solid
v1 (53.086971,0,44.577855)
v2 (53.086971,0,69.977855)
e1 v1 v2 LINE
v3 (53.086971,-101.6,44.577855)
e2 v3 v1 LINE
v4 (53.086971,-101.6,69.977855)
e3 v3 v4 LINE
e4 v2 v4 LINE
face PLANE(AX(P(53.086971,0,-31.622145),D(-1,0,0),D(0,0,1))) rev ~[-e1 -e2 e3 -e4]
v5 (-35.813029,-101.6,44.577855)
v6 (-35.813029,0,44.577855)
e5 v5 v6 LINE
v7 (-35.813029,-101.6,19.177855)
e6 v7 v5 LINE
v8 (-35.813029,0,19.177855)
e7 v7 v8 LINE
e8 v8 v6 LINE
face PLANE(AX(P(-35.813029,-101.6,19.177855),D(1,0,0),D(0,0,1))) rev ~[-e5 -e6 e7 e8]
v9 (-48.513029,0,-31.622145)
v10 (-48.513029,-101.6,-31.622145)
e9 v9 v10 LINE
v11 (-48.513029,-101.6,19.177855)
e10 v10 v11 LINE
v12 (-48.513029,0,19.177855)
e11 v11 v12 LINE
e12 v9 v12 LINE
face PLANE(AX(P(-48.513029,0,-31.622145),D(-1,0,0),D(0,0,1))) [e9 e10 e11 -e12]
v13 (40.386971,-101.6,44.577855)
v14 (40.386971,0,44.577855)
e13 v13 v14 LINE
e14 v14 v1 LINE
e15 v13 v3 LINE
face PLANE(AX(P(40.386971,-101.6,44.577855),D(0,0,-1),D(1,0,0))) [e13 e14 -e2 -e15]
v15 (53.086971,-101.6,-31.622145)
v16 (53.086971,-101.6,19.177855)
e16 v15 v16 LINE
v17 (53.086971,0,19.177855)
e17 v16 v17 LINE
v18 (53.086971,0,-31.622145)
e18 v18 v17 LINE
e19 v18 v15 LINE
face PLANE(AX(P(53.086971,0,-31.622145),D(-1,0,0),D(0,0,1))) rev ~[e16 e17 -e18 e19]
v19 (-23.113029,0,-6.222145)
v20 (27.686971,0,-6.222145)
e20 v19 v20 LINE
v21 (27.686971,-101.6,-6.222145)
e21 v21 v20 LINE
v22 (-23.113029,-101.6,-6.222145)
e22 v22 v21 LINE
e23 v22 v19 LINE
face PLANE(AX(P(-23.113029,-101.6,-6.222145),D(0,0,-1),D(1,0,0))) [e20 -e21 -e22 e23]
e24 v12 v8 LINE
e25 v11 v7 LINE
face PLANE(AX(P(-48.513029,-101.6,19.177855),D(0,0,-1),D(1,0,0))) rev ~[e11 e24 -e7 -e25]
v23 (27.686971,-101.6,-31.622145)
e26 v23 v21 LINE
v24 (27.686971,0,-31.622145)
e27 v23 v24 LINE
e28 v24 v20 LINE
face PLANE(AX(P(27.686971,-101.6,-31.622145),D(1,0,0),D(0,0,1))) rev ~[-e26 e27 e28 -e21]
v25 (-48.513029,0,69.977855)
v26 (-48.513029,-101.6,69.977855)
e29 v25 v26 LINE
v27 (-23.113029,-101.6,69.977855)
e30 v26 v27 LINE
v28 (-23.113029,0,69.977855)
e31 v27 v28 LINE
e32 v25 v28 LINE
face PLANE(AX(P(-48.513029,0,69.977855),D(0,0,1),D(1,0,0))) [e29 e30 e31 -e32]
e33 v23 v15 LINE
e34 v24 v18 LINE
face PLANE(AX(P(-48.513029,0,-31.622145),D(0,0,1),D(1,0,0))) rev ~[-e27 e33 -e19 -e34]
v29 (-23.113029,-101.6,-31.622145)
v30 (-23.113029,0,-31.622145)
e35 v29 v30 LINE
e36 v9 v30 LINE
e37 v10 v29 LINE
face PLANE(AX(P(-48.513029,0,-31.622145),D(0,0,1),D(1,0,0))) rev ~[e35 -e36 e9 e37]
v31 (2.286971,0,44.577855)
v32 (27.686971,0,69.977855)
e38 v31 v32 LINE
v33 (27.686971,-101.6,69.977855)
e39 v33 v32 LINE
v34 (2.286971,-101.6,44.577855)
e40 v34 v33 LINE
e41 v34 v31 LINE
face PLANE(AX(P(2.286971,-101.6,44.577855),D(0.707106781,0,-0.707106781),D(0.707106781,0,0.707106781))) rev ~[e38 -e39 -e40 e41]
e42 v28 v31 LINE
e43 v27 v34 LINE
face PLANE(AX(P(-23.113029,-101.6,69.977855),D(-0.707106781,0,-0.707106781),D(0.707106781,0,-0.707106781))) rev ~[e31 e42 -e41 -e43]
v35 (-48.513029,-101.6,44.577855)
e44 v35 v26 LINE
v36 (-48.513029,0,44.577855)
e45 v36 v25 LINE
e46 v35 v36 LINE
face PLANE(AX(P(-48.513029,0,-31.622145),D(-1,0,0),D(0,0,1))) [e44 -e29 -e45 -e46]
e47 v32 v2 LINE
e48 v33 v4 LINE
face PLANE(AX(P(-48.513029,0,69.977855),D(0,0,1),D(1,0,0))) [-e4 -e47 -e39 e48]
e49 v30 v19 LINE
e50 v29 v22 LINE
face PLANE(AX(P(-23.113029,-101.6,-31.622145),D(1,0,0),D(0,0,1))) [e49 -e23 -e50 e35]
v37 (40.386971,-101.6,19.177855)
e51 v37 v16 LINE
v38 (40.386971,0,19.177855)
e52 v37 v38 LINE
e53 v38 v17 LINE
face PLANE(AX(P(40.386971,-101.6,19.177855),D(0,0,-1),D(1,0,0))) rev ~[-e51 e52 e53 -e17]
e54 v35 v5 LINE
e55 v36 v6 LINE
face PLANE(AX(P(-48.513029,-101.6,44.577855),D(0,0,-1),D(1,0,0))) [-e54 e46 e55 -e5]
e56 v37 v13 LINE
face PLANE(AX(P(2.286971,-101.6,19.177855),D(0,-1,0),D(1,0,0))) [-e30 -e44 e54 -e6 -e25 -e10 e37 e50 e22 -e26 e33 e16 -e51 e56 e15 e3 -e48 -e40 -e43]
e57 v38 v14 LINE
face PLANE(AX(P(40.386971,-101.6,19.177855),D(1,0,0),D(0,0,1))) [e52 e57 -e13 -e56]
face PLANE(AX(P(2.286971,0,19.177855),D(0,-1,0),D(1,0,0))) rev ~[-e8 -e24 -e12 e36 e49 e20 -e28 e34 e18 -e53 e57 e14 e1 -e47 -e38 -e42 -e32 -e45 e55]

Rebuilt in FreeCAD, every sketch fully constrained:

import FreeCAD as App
import Part
import Sketcher

V = App.Vector
Q = App.Units.Quantity

doc = App.newDocument("Part")
params = doc.addObject("Spreadsheet::Sheet", "Params")
for row, (alias, value) in enumerate([
    ("sketch1_width", "4 in"),
    ("pad1_length", "4 in"),
    ("sketch2_width", "2 in"),
    ("pocket1_length", "4 in"),
    ("sketch3_height", "1 in"),
    ("sketch3_width", "0.5 in"),
    ("pocket2_length", "4 in"),
    ("sketch4_width", "2 in"),
    ("sketch4_height", "1 in"),
    ("pocket3_length", "4 in"),
], start=1):
    params.set(f"A{row}", alias)
    params.set(f"B{row}", "=" + value)
    params.setAlias(f"B{row}", alias)

body = doc.addObject("PartDesign::Body", "Body")

sketch1 = doc.addObject("Sketcher::SketchObject", "Sketch")
body.addObject(sketch1)
sketch1.AttachmentSupport = (doc.XZ_Plane, [""])
sketch1.MapMode = "FlatFace"
sketch1.addGeometry(Part.LineSegment(V(-49, 70, 0), V(-49, -32, 0)), False)
sketch1.addGeometry(Part.LineSegment(V(-49, -32, 0), V(53, -32, 0)), False)
sketch1.addGeometry(Part.LineSegment(V(53, -32, 0), V(53, 70, 0)), False)
sketch1.addGeometry(Part.LineSegment(V(53, 70, 0), V(-49, 70, 0)), False)
sketch1.addConstraint(Sketcher.Constraint("Coincident", 0, 2, 1, 1))
sketch1.addConstraint(Sketcher.Constraint("Coincident", 1, 2, 2, 1))
sketch1.addConstraint(Sketcher.Constraint("Coincident", 2, 2, 3, 1))
sketch1.addConstraint(Sketcher.Constraint("Coincident", 3, 2, 0, 1))
sketch1.addConstraint(Sketcher.Constraint("Vertical", 0))
sketch1.addConstraint(Sketcher.Constraint("Horizontal", 1))
sketch1.addConstraint(Sketcher.Constraint("Vertical", 2))
sketch1.addConstraint(Sketcher.Constraint("Horizontal", 3))
sketch1.addConstraint(Sketcher.Constraint("Equal", 3, 0))
sketch1.addConstraint(Sketcher.Constraint("DistanceX", 1, 1, 1, 2, Q("4 in")))
sketch1.addConstraint(Sketcher.Constraint("DistanceX", 0, 2, -1, 1, 48.513029))
sketch1.addConstraint(Sketcher.Constraint("DistanceY", 0, 2, -1, 1, 31.622145))
sketch1.setExpression("Constraints[9]", "Params.sketch1_width")
pad1 = doc.addObject("PartDesign::Pad", "Pad")
body.addObject(pad1)
pad1.Profile = sketch1
pad1.setExpression("Length", "Params.pad1_length")

sketch2 = doc.addObject("Sketcher::SketchObject", "Sketch001")
body.addObject(sketch2)
sketch2.AttachmentSupport = (doc.XZ_Plane, [""])
sketch2.MapMode = "FlatFace"
sketch2.AttachmentOffset = App.Placement(V(0, 0, 4 * 25.4), App.Rotation())
sketch2.addGeometry(Part.LineSegment(V(28, 70, 0), V(-23, 70, 0)), False)
sketch2.addGeometry(Part.LineSegment(V(-23, 70, 0), V(2, 45, 0)), False)
sketch2.addGeometry(Part.LineSegment(V(2, 45, 0), V(28, 70, 0)), False)
sketch2.addConstraint(Sketcher.Constraint("Coincident", 0, 2, 1, 1))
sketch2.addConstraint(Sketcher.Constraint("Coincident", 1, 2, 2, 1))
sketch2.addConstraint(Sketcher.Constraint("Coincident", 2, 2, 0, 1))
sketch2.addConstraint(Sketcher.Constraint("Horizontal", 0))
sketch2.addConstraint(Sketcher.Constraint("Perpendicular", 1, 2))
sketch2.addConstraint(Sketcher.Constraint("Equal", 1, 2))
sketch2.addConstraint(Sketcher.Constraint("DistanceX", 0, 2, 0, 1, Q("2 in")))
sketch2.addConstraint(Sketcher.Constraint("DistanceX", 0, 2, -1, 1, 23.113029))
sketch2.addConstraint(Sketcher.Constraint("DistanceY", -1, 1, 0, 2, 69.977855))
sketch2.setExpression("Constraints[6]", "Params.sketch2_width")
pocket1 = doc.addObject("PartDesign::Pocket", "Pocket")
body.addObject(pocket1)
pocket1.Profile = sketch2
pocket1.setExpression("Length", "Params.pocket1_length")

sketch3 = doc.addObject("Sketcher::SketchObject", "Sketch002")
body.addObject(sketch3)
sketch3.AttachmentSupport = (doc.XZ_Plane, [""])
sketch3.MapMode = "FlatFace"
sketch3.AttachmentOffset = App.Placement(V(0, 0, 4 * 25.4), App.Rotation())
sketch3.addGeometry(Part.LineSegment(V(-49, 45, 0), V(-49, 19, 0)), False)
sketch3.addGeometry(Part.LineSegment(V(-49, 19, 0), V(-36, 19, 0)), False)
sketch3.addGeometry(Part.LineSegment(V(-36, 19, 0), V(-36, 45, 0)), False)
sketch3.addGeometry(Part.LineSegment(V(-36, 45, 0), V(-49, 45, 0)), False)
sketch3.addGeometry(Part.LineSegment(V(40, 45, 0), V(40, 19, 0)), False)
sketch3.addGeometry(Part.LineSegment(V(40, 19, 0), V(53, 19, 0)), False)
sketch3.addGeometry(Part.LineSegment(V(53, 19, 0), V(53, 45, 0)), False)
sketch3.addGeometry(Part.LineSegment(V(53, 45, 0), V(40, 45, 0)), False)
sketch3.addConstraint(Sketcher.Constraint("Coincident", 0, 2, 1, 1))
sketch3.addConstraint(Sketcher.Constraint("Coincident", 1, 2, 2, 1))
sketch3.addConstraint(Sketcher.Constraint("Coincident", 2, 2, 3, 1))
sketch3.addConstraint(Sketcher.Constraint("Coincident", 3, 2, 0, 1))
sketch3.addConstraint(Sketcher.Constraint("Coincident", 4, 2, 5, 1))
sketch3.addConstraint(Sketcher.Constraint("Coincident", 5, 2, 6, 1))
sketch3.addConstraint(Sketcher.Constraint("Coincident", 6, 2, 7, 1))
sketch3.addConstraint(Sketcher.Constraint("Coincident", 7, 2, 4, 1))
sketch3.addConstraint(Sketcher.Constraint("Vertical", 0))
sketch3.addConstraint(Sketcher.Constraint("Horizontal", 1))
sketch3.addConstraint(Sketcher.Constraint("Vertical", 2))
sketch3.addConstraint(Sketcher.Constraint("Horizontal", 3))
sketch3.addConstraint(Sketcher.Constraint("Vertical", 4))
sketch3.addConstraint(Sketcher.Constraint("Horizontal", 5))
sketch3.addConstraint(Sketcher.Constraint("Vertical", 6))
sketch3.addConstraint(Sketcher.Constraint("Horizontal", 7))
sketch3.addConstraint(Sketcher.Constraint("Horizontal", 1, 2, 4, 2))
sketch3.addConstraint(Sketcher.Constraint("Horizontal", 3, 2, 6, 2))
sketch3.addConstraint(Sketcher.Constraint("Equal", 3, 5))
sketch3.addConstraint(Sketcher.Constraint("DistanceY", 0, 2, 0, 1, Q("1 in")))
sketch3.addConstraint(Sketcher.Constraint("DistanceX", 1, 1, 1, 2, Q("0.5 in")))
sketch3.addConstraint(Sketcher.Constraint("DistanceX", 1, 2, 4, 2, Q("3 in")))
sketch3.addConstraint(Sketcher.Constraint("DistanceX", 0, 2, -1, 1, 48.513029))
sketch3.addConstraint(Sketcher.Constraint("DistanceY", -1, 1, 0, 2, 19.177855))
sketch3.setExpression("Constraints[19]", "Params.sketch3_height")
sketch3.setExpression("Constraints[20]", "Params.sketch3_width")
pocket2 = doc.addObject("PartDesign::Pocket", "Pocket001")
body.addObject(pocket2)
pocket2.Profile = sketch3
pocket2.setExpression("Length", "Params.pocket2_length")

sketch4 = doc.addObject("Sketcher::SketchObject", "Sketch003")
body.addObject(sketch4)
sketch4.AttachmentSupport = (doc.XZ_Plane, [""])
sketch4.MapMode = "FlatFace"
sketch4.AttachmentOffset = App.Placement(V(0, 0, 4 * 25.4), App.Rotation())
sketch4.addGeometry(Part.LineSegment(V(-23, -6, 0), V(-23, -32, 0)), False)
sketch4.addGeometry(Part.LineSegment(V(-23, -32, 0), V(28, -32, 0)), False)
sketch4.addGeometry(Part.LineSegment(V(28, -32, 0), V(28, -6, 0)), False)
sketch4.addGeometry(Part.LineSegment(V(28, -6, 0), V(-23, -6, 0)), False)
sketch4.addConstraint(Sketcher.Constraint("Coincident", 0, 2, 1, 1))
sketch4.addConstraint(Sketcher.Constraint("Coincident", 1, 2, 2, 1))
sketch4.addConstraint(Sketcher.Constraint("Coincident", 2, 2, 3, 1))
sketch4.addConstraint(Sketcher.Constraint("Coincident", 3, 2, 0, 1))
sketch4.addConstraint(Sketcher.Constraint("Vertical", 0))
sketch4.addConstraint(Sketcher.Constraint("Horizontal", 1))
sketch4.addConstraint(Sketcher.Constraint("Vertical", 2))
sketch4.addConstraint(Sketcher.Constraint("Horizontal", 3))
sketch4.addConstraint(Sketcher.Constraint("DistanceX", 1, 1, 1, 2, Q("2 in")))
sketch4.addConstraint(Sketcher.Constraint("DistanceY", 0, 2, 0, 1, Q("1 in")))
sketch4.addConstraint(Sketcher.Constraint("DistanceX", 0, 2, -1, 1, 23.113029))
sketch4.addConstraint(Sketcher.Constraint("DistanceY", 0, 2, -1, 1, 31.622145))
sketch4.setExpression("Constraints[8]", "Params.sketch4_width")
sketch4.setExpression("Constraints[9]", "Params.sketch4_height")
pocket3 = doc.addObject("PartDesign::Pocket", "Pocket002")
body.addObject(pocket3)
pocket3.Profile = sketch4
pocket3.setExpression("Length", "Params.pocket3_length")

doc.recompute()
